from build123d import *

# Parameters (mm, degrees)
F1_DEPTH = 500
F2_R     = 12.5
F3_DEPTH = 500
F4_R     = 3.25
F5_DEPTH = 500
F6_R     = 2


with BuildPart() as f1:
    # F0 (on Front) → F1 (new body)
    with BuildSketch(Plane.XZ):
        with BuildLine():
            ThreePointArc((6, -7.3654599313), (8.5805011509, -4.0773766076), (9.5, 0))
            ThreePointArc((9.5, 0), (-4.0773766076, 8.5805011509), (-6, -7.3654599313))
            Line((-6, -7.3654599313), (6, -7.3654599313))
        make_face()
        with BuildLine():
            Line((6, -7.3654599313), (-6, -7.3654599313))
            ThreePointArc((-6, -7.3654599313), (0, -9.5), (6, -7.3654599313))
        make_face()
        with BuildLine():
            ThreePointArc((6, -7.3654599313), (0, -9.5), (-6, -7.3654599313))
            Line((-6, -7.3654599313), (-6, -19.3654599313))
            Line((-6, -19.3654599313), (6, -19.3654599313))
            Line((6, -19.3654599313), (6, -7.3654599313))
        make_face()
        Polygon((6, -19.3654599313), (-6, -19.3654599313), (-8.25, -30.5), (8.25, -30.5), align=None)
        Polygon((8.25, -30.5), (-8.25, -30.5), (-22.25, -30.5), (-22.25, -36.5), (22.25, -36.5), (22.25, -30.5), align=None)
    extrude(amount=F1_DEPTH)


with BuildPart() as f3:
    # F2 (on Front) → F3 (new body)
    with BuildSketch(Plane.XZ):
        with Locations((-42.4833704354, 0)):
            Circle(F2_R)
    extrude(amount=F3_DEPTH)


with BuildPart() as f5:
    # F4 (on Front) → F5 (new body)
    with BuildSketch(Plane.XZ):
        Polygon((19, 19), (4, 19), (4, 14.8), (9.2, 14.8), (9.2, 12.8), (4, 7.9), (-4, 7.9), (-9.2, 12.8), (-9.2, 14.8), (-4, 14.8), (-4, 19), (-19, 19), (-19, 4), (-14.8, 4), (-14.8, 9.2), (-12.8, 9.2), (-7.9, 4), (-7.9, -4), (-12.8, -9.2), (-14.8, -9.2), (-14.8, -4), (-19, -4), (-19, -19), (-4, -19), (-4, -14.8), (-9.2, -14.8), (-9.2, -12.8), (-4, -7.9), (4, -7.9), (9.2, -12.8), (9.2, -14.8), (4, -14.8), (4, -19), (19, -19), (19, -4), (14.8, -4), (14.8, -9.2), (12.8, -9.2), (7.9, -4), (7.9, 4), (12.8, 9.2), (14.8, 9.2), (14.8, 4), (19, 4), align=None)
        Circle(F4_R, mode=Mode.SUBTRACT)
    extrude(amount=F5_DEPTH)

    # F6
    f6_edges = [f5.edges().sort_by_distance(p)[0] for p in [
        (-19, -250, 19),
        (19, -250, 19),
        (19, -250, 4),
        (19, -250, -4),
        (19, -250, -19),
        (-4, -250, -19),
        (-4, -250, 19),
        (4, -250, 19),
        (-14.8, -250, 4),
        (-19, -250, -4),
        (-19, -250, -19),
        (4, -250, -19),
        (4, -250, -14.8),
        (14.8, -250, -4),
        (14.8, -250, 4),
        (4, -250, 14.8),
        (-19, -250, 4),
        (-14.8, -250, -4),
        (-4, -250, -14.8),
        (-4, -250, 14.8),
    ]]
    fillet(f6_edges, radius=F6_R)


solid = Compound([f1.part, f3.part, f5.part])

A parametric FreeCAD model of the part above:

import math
import FreeCAD as App
import Part
import Sketcher
from FreeCAD import Vector
Q = App.Units.Quantity


def edges_at(feature, points):
    """Names of the edges that pass closest to the given points."""
    edges = feature.Shape.Edges
    near = lambda p: min(range(len(edges)), key=lambda i: edges[i].distToShape(Part.Vertex(*p))[0])
    return sorted({f"Edge{near(p) + 1}" for p in points})

doc = App.newDocument("Part")
params = doc.addObject("Spreadsheet::Sheet", "Params")
for row, (alias, value) in enumerate([
    ("sketch1_radius", "9.5 mm"),
    ("sketch1_width", "14 mm"),
    ("sketch1_height", "12 mm"),
    ("sketch1_height2", "6 mm"),
    ("sketch1_width2", "44.5 mm"),
    ("pad1_length", "500 mm"),
    ("sketch2_diameter", "25 mm"),
    ("pad2_length", "500 mm"),
    ("sketch3_diameter", "6.5 mm"),
    ("sketch3_width", "15 mm"),
    ("sketch3_width2", "8 mm"),
    ("sketch3_width3", "2 mm"),
    ("sketch3_width4", "5.2 mm"),
    ("pad3_length", "500 mm"),
    ("fillet_radius", "2 mm"),
], start=1):
    params.set(f"A{row}", alias)
    params.set(f"B{row}", "=" + value)
    params.setAlias(f"B{row}", alias)

body = doc.addObject("PartDesign::Body", "Body")

# Sketch on XZ plane
sketch1 = body.newObject("Sketcher::SketchObject", "Sketch")
sketch1.AttachmentSupport = (doc.getObject("XZ_Plane"), [""])
sketch1.MapMode = "FlatFace"
sketch1.addGeometry(Part.ArcOfCircle(Part.Circle(Vector(0, 0, 0), Vector(0, 0, 1), 9), math.radians(-51), math.radians(0)), False)
sketch1.addGeometry(Part.ArcOfCircle(Part.Circle(Vector(0, 0, 0), Vector(0, 0, 1), 10), math.radians(0), math.radians(231)), False)
sketch1.addGeometry(Part.LineSegment(Vector(-6, -7, 0), Vector(-6, -19, 0)), False)
sketch1.addGeometry(Part.LineSegment(Vector(-6, -19, 0), Vector(-8, -30, 0)), False)
sketch1.addGeometry(Part.LineSegment(Vector(-8, -30, 0), Vector(-22, -30, 0)), False)
sketch1.addGeometry(Part.LineSegment(Vector(-22, -30, 0), Vector(-22, -36, 0)), False)
sketch1.addGeometry(Part.LineSegment(Vector(-22, -36, 0), Vector(22, -36, 0)), False)
sketch1.addGeometry(Part.LineSegment(Vector(22, -36, 0), Vector(22, -30, 0)), False)
sketch1.addGeometry(Part.LineSegment(Vector(22, -30, 0), Vector(8, -30, 0)), False)
sketch1.addGeometry(Part.LineSegment(Vector(8, -30, 0), Vector(6, -19, 0)), False)
sketch1.addGeometry(Part.LineSegment(Vector(6, -19, 0), Vector(6, -7, 0)), False)
sketch1.addConstraint(Sketcher.Constraint("Tangent", 0, 2, 1, 1))
sketch1.addConstraint(Sketcher.Constraint("Coincident", 1, 2, 2, 1))
sketch1.addConstraint(Sketcher.Constraint("Coincident", 2, 2, 3, 1))
sketch1.addConstraint(Sketcher.Constraint("Coincident", 3, 2, 4, 1))
sketch1.addConstraint(Sketcher.Constraint("Coincident", 4, 2, 5, 1))
sketch1.addConstraint(Sketcher.Constraint("Coincident", 5, 2, 6, 1))
sketch1.addConstraint(Sketcher.Constraint("Coincident", 6, 2, 7, 1))
sketch1.addConstraint(Sketcher.Constraint("Coincident", 7, 2, 8, 1))
sketch1.addConstraint(Sketcher.Constraint("Coincident", 8, 2, 9, 1))
sketch1.addConstraint(Sketcher.Constraint("Coincident", 9, 2, 10, 1))
sketch1.addConstraint(Sketcher.Constraint("Coincident", 10, 2, 0, 1))
sketch1.addConstraint(Sketcher.Constraint("Vertical", 2))
sketch1.addConstraint(Sketcher.Constraint("Horizontal", 4))
sketch1.addConstraint(Sketcher.Constraint("Vertical", 5))
sketch1.addConstraint(Sketcher.Constraint("Horizontal", 6))
sketch1.addConstraint(Sketcher.Constraint("Vertical", 7))
sketch1.addConstraint(Sketcher.Constraint("Horizontal", 8))
sketch1.addConstraint(Sketcher.Constraint("Vertical", 10))
sketch1.addConstraint(Sketcher.Constraint("Coincident", 0, 3, -1, 1))
sketch1.addConstraint(Sketcher.Constraint("Equal", 0, 1))
sketch1.addConstraint(Sketcher.Constraint("Symmetric", 4, 2, 7, 2, -2))
sketch1.addConstraint(Sketcher.Constraint("Symmetric", 2, 2, 9, 2, -2))
sketch1.addConstraint(Sketcher.Constraint("PointOnObject", 0, 2, -1))
sketch1.addConstraint(Sketcher.Constraint("Equal", 4, 8))
sketch1.addConstraint(Sketcher.Constraint("Radius", 0, Q("9.5 mm")))
sketch1.addConstraint(Sketcher.Constraint("DistanceX", 4, 2, 4, 1, Q("14 mm")))
sketch1.addConstraint(Sketcher.Constraint("DistanceY", 2, 2, 2, 1, Q("12 mm")))
sketch1.addConstraint(Sketcher.Constraint("DistanceY", 5, 2, 5, 1, Q("6 mm")))
sketch1.addConstraint(Sketcher.Constraint("DistanceX", 6, 1, 6, 2, Q("44.5 mm")))
sketch1.addConstraint(Sketcher.Constraint("DistanceX", 1, 2, -1, 1, Q("6 mm")))
sketch1.addConstraint(Sketcher.Constraint("DistanceY", 3, 2, -1, 1, Q("30.5 mm")))
sketch1.setExpression("Constraints[24]", "Params.sketch1_radius")
sketch1.setExpression("Constraints[25]", "Params.sketch1_width")
sketch1.setExpression("Constraints[26]", "Params.sketch1_height")
sketch1.setExpression("Constraints[27]", "Params.sketch1_height2")
sketch1.setExpression("Constraints[28]", "Params.sketch1_width2")
pad1 = body.newObject("PartDesign::Pad", "Pad")
pad1.Profile = sketch1
pad1.setExpression("Length", "Params.pad1_length")
body2 = doc.addObject("PartDesign::Body", "Body001")

# Sketch on XZ plane
sketch2 = body2.newObject("Sketcher::SketchObject", "Sketch001")
sketch2.AttachmentSupport = (doc.getObject("XZ_Plane001"), [""])
sketch2.MapMode = "FlatFace"
sketch2.addGeometry(Part.Circle(Vector(-42, 0, 0), Vector(0, 0, 1), 12), False)
sketch2.addConstraint(Sketcher.Constraint("PointOnObject", 0, 3, -1))
sketch2.addConstraint(Sketcher.Constraint("Diameter", 0, Q("25 mm")))
sketch2.addConstraint(Sketcher.Constraint("DistanceX", 0, 3, -1, 1, Q("42.48337 mm")))
sketch2.setExpression("Constraints[1]", "Params.sketch2_diameter")
pad2 = body2.newObject("PartDesign::Pad", "Pad001")
pad2.Profile = sketch2
pad2.setExpression("Length", "Params.pad2_length")
body3 = doc.addObject("PartDesign::Body", "Body002")

# Sketch on XZ plane
sketch3 = body3.newObject("Sketcher::SketchObject", "Sketch002")
sketch3.AttachmentSupport = (doc.getObject("XZ_Plane002"), [""])
sketch3.MapMode = "FlatFace"
sketch3.addGeometry(Part.LineSegment(Vector(19, 19, 0), Vector(4, 19, 0)), False)
sketch3.addGeometry(Part.LineSegment(Vector(4, 19, 0), Vector(4, 14.8, 0)), False)
sketch3.addGeometry(Part.LineSegment(Vector(4, 14.8, 0), Vector(9.2, 14.8, 0)), False)
sketch3.addGeometry(Part.LineSegment(Vector(9.2, 14.8, 0), Vector(9.2, 12.8, 0)), False)
sketch3.addGeometry(Part.LineSegment(Vector(9.2, 12.8, 0), Vector(4, 7.9, 0)), False)
sketch3.addGeometry(Part.LineSegment(Vector(4, 7.9, 0), Vector(-4, 7.9, 0)), False)
sketch3.addGeometry(Part.LineSegment(Vector(-4, 7.9, 0), Vector(-9.2, 12.8, 0)), False)
sketch3.addGeometry(Part.LineSegment(Vector(-9.2, 12.8, 0), Vector(-9.2, 14.8, 0)), False)
sketch3.addGeometry(Part.LineSegment(Vector(-9.2, 14.8, 0), Vector(-4, 14.8, 0)), False)
sketch3.addGeometry(Part.LineSegment(Vector(-4, 14.8, 0), Vector(-4, 19, 0)), False)
sketch3.addGeometry(Part.LineSegment(Vector(-4, 19, 0), Vector(-19, 19, 0)), False)
sketch3.addGeometry(Part.LineSegment(Vector(-19, 19, 0), Vector(-19, 4, 0)), False)
sketch3.addGeometry(Part.LineSegment(Vector(-19, 4, 0), Vector(-14.8, 4, 0)), False)
sketch3.addGeometry(Part.LineSegment(Vector(-14.8, 4, 0), Vector(-14.8, 9.2, 0)), False)
sketch3.addGeometry(Part.LineSegment(Vector(-14.8, 9.2, 0), Vector(-12.8, 9.2, 0)), False)
sketch3.addGeometry(Part.LineSegment(Vector(-12.8, 9.2, 0), Vector(-7.9, 4, 0)), False)
sketch3.addGeometry(Part.LineSegment(Vector(-7.9, 4, 0), Vector(-7.9, -4, 0)), False)
sketch3.addGeometry(Part.LineSegment(Vector(-7.9, -4, 0), Vector(-12.8, -9.2, 0)), False)
sketch3.addGeometry(Part.LineSegment(Vector(-12.8, -9.2, 0), Vector(-14.8, -9.2, 0)), False)
sketch3.addGeometry(Part.LineSegment(Vector(-14.8, -9.2, 0), Vector(-14.8, -4, 0)), False)
sketch3.addGeometry(Part.LineSegment(Vector(-14.8, -4, 0), Vector(-19, -4, 0)), False)
sketch3.addGeometry(Part.LineSegment(Vector(-19, -4, 0), Vector(-19, -19, 0)), False)
sketch3.addGeometry(Part.LineSegment(Vector(-19, -19, 0), Vector(-4, -19, 0)), False)
sketch3.addGeometry(Part.LineSegment(Vector(-4, -19, 0), Vector(-4, -14.8, 0)), False)
sketch3.addGeometry(Part.LineSegment(Vector(-4, -14.8, 0), Vector(-9.2, -14.8, 0)), False)
sketch3.addGeometry(Part.LineSegment(Vector(-9.2, -14.8, 0), Vector(-9.2, -12.8, 0)), False)
sketch3.addGeometry(Part.LineSegment(Vector(-9.2, -12.8, 0), Vector(-4, -7.9, 0)), False)
sketch3.addGeometry(Part.LineSegment(Vector(-4, -7.9, 0), Vector(4, -7.9, 0)), False)
sketch3.addGeometry(Part.LineSegment(Vector(4, -7.9, 0), Vector(9.2, -12.8, 0)), False)
sketch3.addGeometry(Part.LineSegment(Vector(9.2, -12.8, 0), Vector(9.2, -14.8, 0)), False)
sketch3.addGeometry(Part.LineSegment(Vector(9.2, -14.8, 0), Vector(4, -14.8, 0)), False)
sketch3.addGeometry(Part.LineSegment(Vector(4, -14.8, 0), Vector(4, -19, 0)), False)
sketch3.addGeometry(Part.LineSegment(Vector(4, -19, 0), Vector(19, -19, 0)), False)
sketch3.addGeometry(Part.LineSegment(Vector(19, -19, 0), Vector(19, -4, 0)), False)
sketch3.addGeometry(Part.LineSegment(Vector(19, -4, 0), Vector(14.8, -4, 0)), False)
sketch3.addGeometry(Part.LineSegment(Vector(14.8, -4, 0), Vector(14.8, -9.2, 0)), False)
sketch3.addGeometry(Part.LineSegment(Vector(14.8, -9.2, 0), Vector(12.8, -9.2, 0)), False)
sketch3.addGeometry(Part.LineSegment(Vector(12.8, -9.2, 0), Vector(7.9, -4, 0)), False)
sketch3.addGeometry(Part.LineSegment(Vector(7.9, -4, 0), Vector(7.9, 4, 0)), False)
sketch3.addGeometry(Part.LineSegment(Vector(7.9, 4, 0), Vector(12.8, 9.2, 0)), False)
sketch3.addGeometry(Part.LineSegment(Vector(12.8, 9.2, 0), Vector(14.8, 9.2, 0)), False)
sketch3.addGeometry(Part.LineSegment(Vector(14.8, 9.2, 0), Vector(14.8, 4, 0)), False)
sketch3.addGeometry(Part.LineSegment(Vector(14.8, 4, 0), Vector(19, 4, 0)), False)
sketch3.addGeometry(Part.LineSegment(Vector(19, 4, 0), Vector(19, 19, 0)), False)
sketch3.addGeometry(Part.Circle(Vector(0, 0, 0), Vector(0, 0, 1), 3.2), False)
sketch3.addConstraint(Sketcher.Constraint("Coincident", 0, 2, 1, 1))
sketch3.addConstraint(Sketcher.Constraint("Coincident", 1, 2, 2, 1))
sketch3.addConstraint(Sketcher.Constraint("Coincident", 2, 2, 3, 1))
sketch3.addConstraint(Sketcher.Constraint("Coincident", 3, 2, 4, 1))
sketch3.addConstraint(Sketcher.Constraint("Coincident", 4, 2, 5, 1))
sketch3.addConstraint(Sketcher.Constraint("Coincident", 5, 2, 6, 1))
sketch3.addConstraint(Sketcher.Constraint("Coincident", 6, 2, 7, 1))
sketch3.addConstraint(Sketcher.Constraint("Coincident", 7, 2, 8, 1))
sketch3.addConstraint(Sketcher.Constraint("Coincident", 8, 2, 9, 1))
sketch3.addConstraint(Sketcher.Constraint("Coincident", 9, 2, 10, 1))
sketch3.addConstraint(Sketcher.Constraint("Coincident", 10, 2, 11, 1))
sketch3.addConstraint(Sketcher.Constraint("Coincident", 11, 2, 12, 1))
sketch3.addConstraint(Sketcher.Constraint("Coincident", 12, 2, 13, 1))
sketch3.addConstraint(Sketcher.Constraint("Coincident", 13, 2, 14, 1))
sketch3.addConstraint(Sketcher.Constraint("Coincident", 14, 2, 15, 1))
sketch3.addConstraint(Sketcher.Constraint("Coincident", 15, 2, 16, 1))
sketch3.addConstraint(Sketcher.Constraint("Coincident", 16, 2, 17, 1))
sketch3.addConstraint(Sketcher.Constraint("Coincident", 17, 2, 18, 1))
sketch3.addConstraint(Sketcher.Constraint("Coincident", 18, 2, 19, 1))
sketch3.addConstraint(Sketcher.Constraint("Coincident", 19, 2, 20, 1))
sketch3.addConstraint(Sketcher.Constraint("Coincident", 20, 2, 21, 1))
sketch3.addConstraint(Sketcher.Constraint("Coincident", 21, 2, 22, 1))
sketch3.addConstraint(Sketcher.Constraint("Coincident", 22, 2, 23, 1))
sketch3.addConstraint(Sketcher.Constraint("Coincident", 23, 2, 24, 1))
sketch3.addConstraint(Sketcher.Constraint("Coincident", 24, 2, 25, 1))
sketch3.addConstraint(Sketcher.Constraint("Coincident", 25, 2, 26, 1))
sketch3.addConstraint(Sketcher.Constraint("Coincident", 26, 2, 27, 1))
sketch3.addConstraint(Sketcher.Constraint("Coincident", 27, 2, 28, 1))
sketch3.addConstraint(Sketcher.Constraint("Coincident", 28, 2, 29, 1))
sketch3.addConstraint(Sketcher.Constraint("Coincident", 29, 2, 30, 1))
sketch3.addConstraint(Sketcher.Constraint("Coincident", 30, 2, 31, 1))
sketch3.addConstraint(Sketcher.Constraint("Coincident", 31, 2, 32, 1))
sketch3.addConstraint(Sketcher.Constraint("Coincident", 32, 2, 33, 1))
sketch3.addConstraint(Sketcher.Constraint("Coincident", 33, 2, 34, 1))
sketch3.addConstraint(Sketcher.Constraint("Coincident", 34, 2, 35, 1))
sketch3.addConstraint(Sketcher.Constraint("Coincident", 35, 2, 36, 1))
sketch3.addConstraint(Sketcher.Constraint("Coincident", 36, 2, 37, 1))
sketch3.addConstraint(Sketcher.Constraint("Coincident", 37, 2, 38, 1))
sketch3.addConstraint(Sketcher.Constraint("Coincident", 38, 2, 39, 1))
sketch3.addConstraint(Sketcher.Constraint("Coincident", 39, 2, 40, 1))
sketch3.addConstraint(Sketcher.Constraint("Coincident", 40, 2, 41, 1))
sketch3.addConstraint(Sketcher.Constraint("Coincident", 41, 2, 42, 1))
sketch3.addConstraint(Sketcher.Constraint("Coincident", 42, 2, 43, 1))
sketch3.addConstraint(Sketcher.Constraint("Coincident", 43, 2, 0, 1))
sketch3.addConstraint(Sketcher.Constraint("Horizontal", 0))
sketch3.addConstraint(Sketcher.Constraint("Vertical", 1))
sketch3.addConstraint(Sketcher.Constraint("Horizontal", 2))
sketch3.addConstraint(Sketcher.Constraint("Vertical", 3))
sketch3.addConstraint(Sketcher.Constraint("Horizontal", 5))
sketch3.addConstraint(Sketcher.Constraint("Vertical", 7))
sketch3.addConstraint(Sketcher.Constraint("Horizontal", 8))
sketch3.addConstraint(Sketcher.Constraint("Vertical", 9))
sketch3.addConstraint(Sketcher.Constraint("Horizontal", 10))
sketch3.addConstraint(Sketcher.Constraint("Vertical", 11))
sketch3.addConstraint(Sketcher.Constraint("Horizontal", 12))
sketch3.addConstraint(Sketcher.Constraint("Vertical", 13))
sketch3.addConstraint(Sketcher.Constraint("Horizontal", 14))
sketch3.addConstraint(Sketcher.Constraint("Vertical", 16))
sketch3.addConstraint(Sketcher.Constraint("Horizontal", 18))
sketch3.addConstraint(Sketcher.Constraint("Vertical", 19))
sketch3.addConstraint(Sketcher.Constraint("Horizontal", 20))
sketch3.addConstraint(Sketcher.Constraint("Vertical", 21))
sketch3.addConstraint(Sketcher.Constraint("Horizontal", 22))
sketch3.addConstraint(Sketcher.Constraint("Vertical", 23))
sketch3.addConstraint(Sketcher.Constraint("Horizontal", 24))
sketch3.addConstraint(Sketcher.Constraint("Vertical", 25))
sketch3.addConstraint(Sketcher.Constraint("Horizontal", 27))
sketch3.addConstraint(Sketcher.Constraint("Vertical", 29))
sketch3.addConstraint(Sketcher.Constraint("Horizontal", 30))
sketch3.addConstraint(Sketcher.Constraint("Vertical", 31))
sketch3.addConstraint(Sketcher.Constraint("Horizontal", 32))
sketch3.addConstraint(Sketcher.Constraint("Vertical", 33))
sketch3.addConstraint(Sketcher.Constraint("Horizontal", 34))
sketch3.addConstraint(Sketcher.Constraint("Vertical", 35))
sketch3.addConstraint(Sketcher.Constraint("Horizontal", 36))
sketch3.addConstraint(Sketcher.Constraint("Vertical", 38))
sketch3.addConstraint(Sketcher.Constraint("Horizontal", 40))
sketch3.addConstraint(Sketcher.Constraint("Vertical", 41))
sketch3.addConstraint(Sketcher.Constraint("Horizontal", 42))
sketch3.addConstraint(Sketcher.Constraint("Vertical", 43))
sketch3.addConstraint(Sketcher.Constraint("Coincident", 44, 3, -1, 1))
sketch3.addConstraint(Sketcher.Constraint("Symmetric", 0, 2, 22, 2, -1, 1))
sketch3.addConstraint(Sketcher.Constraint("Symmetric", 2, 2, 24, 2, -1, 1))
sketch3.addConstraint(Sketcher.Constraint("Symmetric", 4, 2, 26, 2, -1, 1))
sketch3.addConstraint(Sketcher.Constraint("Symmetric", 6, 2, 28, 2, -1, 1))
sketch3.addConstraint(Sketcher.Constraint("Symmetric", 8, 2, 30, 2, -1, 1))
sketch3.addConstraint(Sketcher.Constraint("Symmetric", 10, 2, 32, 2, -1, 1))
sketch3.addConstraint(Sketcher.Constraint("Symmetric", 12, 2, 34, 2, -1, 1))
sketch3.addConstraint(Sketcher.Constraint("Symmetric", 14, 2, 36, 2, -1, 1))
sketch3.addConstraint(Sketcher.Constraint("Symmetric", 15, 2, 37, 2, -1, 1))
sketch3.addConstraint(Sketcher.Constraint("Symmetric", 17, 2, 39, 2, -1, 1))
sketch3.addConstraint(Sketcher.Constraint("Symmetric", 19, 2, 41, 2, -1, 1))
sketch3.addConstraint(Sketcher.Constraint("Symmetric", 3, 2, 6, 2, -2))
sketch3.addConstraint(Sketcher.Constraint("Symmetric", 1, 2, 8, 2, -2))
sketch3.addConstraint(Sketcher.Constraint("Symmetric", 21, 2, 32, 2, -2))
sketch3.addConstraint(Sketcher.Constraint("Symmetric", 19, 2, 34, 2, -2))
sketch3.addConstraint(Sketcher.Constraint("Symmetric", 17, 2, 36, 2, -2))
sketch3.addConstraint(Sketcher.Constraint("Perpendicular", 4, 15))
sketch3.addConstraint(Sketcher.Constraint("Perpendicular", 6, 17))
sketch3.addConstraint(Sketcher.Constraint("Perpendicular", 15, 26))
sketch3.addConstraint(Sketcher.Constraint("Perpendicular", 17, 28))
sketch3.addConstraint(Sketcher.Constraint("Perpendicular", 28, 39))
sketch3.addConstraint(Sketcher.Constraint("Horizontal", 12, 2, 15, 2))
sketch3.addConstraint(Sketcher.Constraint("Horizontal", 16, 2, 19, 2))
sketch3.addConstraint(Sketcher.Constraint("Vertical", 1, 2, 4, 2))
sketch3.addConstraint(Sketcher.Constraint("Vertical", 33, 2, 42, 2))
sketch3.addConstraint(Sketcher.Constraint("Equal", 42, 1))
sketch3.addConstraint(Sketcher.Constraint("Equal", 40, 3))
sketch3.addConstraint(Sketcher.Constraint("Equal", 32, 11))
sketch3.addConstraint(Sketcher.Constraint("Equal", 30, 13))
sketch3.addConstraint(Sketcher.Constraint("Equal", 27, 16))
sketch3.addConstraint(Sketcher.Constraint("Diameter", 44, Q("6.5 mm")))
sketch3.addConstraint(Sketcher.Constraint("DistanceX", 0, 2, 0, 1, Q("15 mm")))
sketch3.addConstraint(Sketcher.Constraint("DistanceX", 5, 2, 5, 1, Q("8 mm")))
sketch3.addConstraint(Sketcher.Constraint("DistanceX", 14, 1, 14, 2, Q("2 mm")))
sketch3.addConstraint(Sketcher.Constraint("DistanceX", 2, 1, 2, 2, Q("5.2 mm")))
sketch3.addConstraint(Sketcher.Constraint("DistanceX", 12, 1, 12, 2, Q("4.2 mm")))
sketch3.addConstraint(Sketcher.Constraint("DistanceY", -1, 1, 4, 2, Q("7.9 mm")))
sketch3.setExpression("Constraints[111]", "Params.sketch3_diameter")
sketch3.setExpression("Constraints[112]", "Params.sketch3_width")
sketch3.setExpression("Constraints[113]", "Params.sketch3_width2")
sketch3.setExpression("Constraints[114]", "Params.sketch3_width3")
sketch3.setExpression("Constraints[115]", "Params.sketch3_width4")
pad3 = body3.newObject("PartDesign::Pad", "Pad002")
pad3.Profile = sketch3
pad3.setExpression("Length", "Params.pad3_length")
doc.recompute()

fillet = body3.newObject("PartDesign::Fillet", "Fillet")
fillet.Base = (pad3, edges_at(pad3, [
    (-19, -250, 19),
    (19, -250, 19),
    (19, -250, 4),
    (19, -250, -4),
    (19, -250, -19),
    (-4, -250, -19),
    (-4, -250, 19),
    (4, -250, 19),
    (-14.8, -250, 4),
    (-19, -250, -4),
    (-19, -250, -19),
    (4, -250, -19),
    (4, -250, -14.8),
    (14.8, -250, -4),
    (14.8, -250, 4),
    (4, -250, 14.8),
    (-19, -250, 4),
    (-14.8, -250, -4),
    (-4, -250, -14.8),
    (-4, -250, 14.8),
]))
fillet.setExpression("Radius", "Params.fillet_radius")

doc.recompute()
